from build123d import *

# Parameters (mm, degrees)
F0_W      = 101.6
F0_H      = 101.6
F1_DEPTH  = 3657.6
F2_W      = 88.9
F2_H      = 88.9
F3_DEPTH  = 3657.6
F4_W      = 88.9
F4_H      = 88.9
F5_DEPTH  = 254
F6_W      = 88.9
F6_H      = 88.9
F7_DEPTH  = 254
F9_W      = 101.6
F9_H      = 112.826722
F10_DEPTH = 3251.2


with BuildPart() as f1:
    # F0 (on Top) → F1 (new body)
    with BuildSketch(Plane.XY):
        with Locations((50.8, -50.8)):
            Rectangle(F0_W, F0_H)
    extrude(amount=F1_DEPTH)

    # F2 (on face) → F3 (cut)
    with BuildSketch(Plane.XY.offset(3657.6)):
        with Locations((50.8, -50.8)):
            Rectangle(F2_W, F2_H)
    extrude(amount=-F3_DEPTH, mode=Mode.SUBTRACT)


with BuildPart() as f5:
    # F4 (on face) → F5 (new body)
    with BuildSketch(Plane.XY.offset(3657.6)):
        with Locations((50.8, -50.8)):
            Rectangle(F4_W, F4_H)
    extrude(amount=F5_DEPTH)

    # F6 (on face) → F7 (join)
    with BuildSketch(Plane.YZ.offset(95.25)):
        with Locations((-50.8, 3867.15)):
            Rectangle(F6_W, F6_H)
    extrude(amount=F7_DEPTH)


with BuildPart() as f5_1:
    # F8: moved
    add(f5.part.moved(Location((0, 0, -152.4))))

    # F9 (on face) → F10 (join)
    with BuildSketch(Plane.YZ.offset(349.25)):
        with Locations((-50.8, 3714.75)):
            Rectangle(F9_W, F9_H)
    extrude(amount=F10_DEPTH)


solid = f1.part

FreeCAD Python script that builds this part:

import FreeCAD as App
import Part
import Sketcher
Q = App.Units.Quantity


def add_polygon(sketch, points):
    """Adds a closed chain of lines whose ends are joined by coincident constraints."""
    first, n = sketch.GeometryCount, len(points)
    for a, b in zip(points, points[1:] + points[:1]):
        sketch.addGeometry(Part.LineSegment(App.Vector(*a, 0), App.Vector(*b, 0)), False)
    for i in range(n):
        sketch.addConstraint(Sketcher.Constraint("Coincident", first + i, 2, first + (i + 1) % n, 1))

doc = App.newDocument("Part")
body = doc.addObject("PartDesign::Body", "Body")

# Sketch on XY plane
sketch1 = doc.addObject("Sketcher::SketchObject", "Sketch")
body.addObject(sketch1)
sketch1.AttachmentSupport = (doc.XY_Plane, [""])
sketch1.MapMode = "FlatFace"
add_polygon(sketch1, [(0, 0), (0, -102), (102, -102), (102, 0)])  # lines 0-3
sketch1.addConstraint([
    Sketcher.Constraint("Vertical", 0),
    Sketcher.Constraint("Horizontal", 1),
    Sketcher.Constraint("Vertical", 2),
    Sketcher.Constraint("Horizontal", 3),
    Sketcher.Constraint("Coincident", 3, 2, -1, 1),
    Sketcher.Constraint("Equal", 3, 0),
    Sketcher.Constraint("DistanceX", 1, 1, 1, 2, Q("4 in")),
])
pad1 = doc.addObject("PartDesign::Pad", "Pad")
body.addObject(pad1)
pad1.Profile = sketch1
pad1.Length = Q("144 in")

# Sketch on XY plane
sketch2 = doc.addObject("Sketcher::SketchObject", "Sketch001")
body.addObject(sketch2)
sketch2.AttachmentSupport = (doc.XY_Plane, [""])
sketch2.MapMode = "FlatFace"
sketch2.AttachmentOffset = App.Placement(App.Vector(0, 0, 144 * 25.4), App.Rotation())
add_polygon(sketch2, [(6, -6), (6, -95), (95, -95), (95, -6)])  # lines 0-3
sketch2.addConstraint([
    Sketcher.Constraint("Vertical", 0),
    Sketcher.Constraint("Horizontal", 1),
    Sketcher.Constraint("Vertical", 2),
    Sketcher.Constraint("Horizontal", 3),
    Sketcher.Constraint("Equal", 3, 0),
    Sketcher.Constraint("DistanceX", 1, 1, 1, 2, Q("3.5 in")),
    Sketcher.Constraint("DistanceX", -1, 1, 0, 2, Q("0.25 in")),
    Sketcher.Constraint("DistanceY", 0, 2, -1, 1, Q("3.75 in")),
])
pocket1 = doc.addObject("PartDesign::Pocket", "Pocket")
body.addObject(pocket1)
pocket1.Profile = sketch2
pocket1.Length = Q("144 in")
body2 = doc.addObject("PartDesign::Body", "Body001")

# Sketch on XY plane
sketch3 = doc.addObject("Sketcher::SketchObject", "Sketch002")
body2.addObject(sketch3)
sketch3.AttachmentSupport = (doc.getObject("XY_Plane001"), [""])
sketch3.MapMode = "FlatFace"
sketch3.AttachmentOffset = App.Placement(App.Vector(0, 0, 144 * 25.4), App.Rotation())
add_polygon(sketch3, [(6, -6), (6, -95), (95, -95), (95, -6)])  # lines 0-3
sketch3.addConstraint([
    Sketcher.Constraint("Vertical", 0),
    Sketcher.Constraint("Horizontal", 1),
    Sketcher.Constraint("Vertical", 2),
    Sketcher.Constraint("Horizontal", 3),
    Sketcher.Constraint("Equal", 3, 0),
    Sketcher.Constraint("DistanceX", 1, 1, 1, 2, Q("3.5 in")),
    Sketcher.Constraint("DistanceX", -1, 1, 0, 2, Q("0.25 in")),
    Sketcher.Constraint("DistanceY", 0, 2, -1, 1, Q("3.75 in")),
])
pad2 = doc.addObject("PartDesign::Pad", "Pad001")
body2.addObject(pad2)
pad2.Profile = sketch3
pad2.Length = Q("10 in")

# Sketch on YZ plane
sketch4 = doc.addObject("Sketcher::SketchObject", "Sketch003")
body2.addObject(sketch4)
sketch4.AttachmentSupport = (doc.getObject("YZ_Plane001"), [""])
sketch4.MapMode = "FlatFace"
sketch4.AttachmentOffset = App.Placement(App.Vector(0, 0, 3.75 * 25.4), App.Rotation())
add_polygon(sketch4, [(-95, 3912), (-95, 3823), (-6, 3823), (-6, 3912)])  # lines 0-3
sketch4.addConstraint([
    Sketcher.Constraint("Vertical", 0),
    Sketcher.Constraint("Horizontal", 1),
    Sketcher.Constraint("Vertical", 2),
    Sketcher.Constraint("Horizontal", 3),
    Sketcher.Constraint("Equal", 3, 0),
    Sketcher.Constraint("DistanceX", 1, 1, 1, 2, Q("3.5 in")),
    Sketcher.Constraint("DistanceY", -1, 1, 2, 2, Q("154 in")),
    Sketcher.Constraint("DistanceX", 0, 2, -1, 1, Q("3.75 in")),
])
pad3 = doc.addObject("PartDesign::Pad", "Pad002")
body2.addObject(pad3)
pad3.Profile = sketch4
pad3.Length = Q("10 in")
body3 = doc.addObject("PartDesign::Body", "Body002")
doc.recompute()

body2.Placement = App.Placement(App.Vector(0, 0, -152.4), App.Rotation(App.Vector(0, 0, 1), 0))
boolean = doc.addObject("PartDesign::Boolean", "Boolean")
body3.addObject(boolean)
boolean.Type = "Fuse"
boolean.addObjects([body2])

# Sketch on YZ plane
sketch5 = doc.addObject("Sketcher::SketchObject", "Sketch004")
body3.addObject(sketch5)
sketch5.AttachmentSupport = (doc.getObject("YZ_Plane002"), [""])
sketch5.MapMode = "FlatFace"
sketch5.AttachmentOffset = App.Placement(App.Vector(0, 0, 13.75 * 25.4), App.Rotation())
add_polygon(sketch5, [(-102, 3771), (-102, 3658), (0, 3658), (0, 3771)])  # lines 0-3
sketch5.addConstraint([
    Sketcher.Constraint("Vertical", 0),
    Sketcher.Constraint("Horizontal", 1),
    Sketcher.Constraint("Vertical", 2),
    Sketcher.Constraint("Horizontal", 3),
    Sketcher.Constraint("PointOnObject", 1, 2, -2),
    Sketcher.Constraint("DistanceX", 1, 1, 1, 2, Q("4 in")),
    Sketcher.Constraint("DistanceY", 0, 2, 0, 1, 112.826722),
    Sketcher.Constraint("DistanceY", -1, 1, 0, 2, 3658.336639),
])
pad4 = doc.addObject("PartDesign::Pad", "Pad003")
body3.addObject(pad4)
pad4.Profile = sketch5
pad4.Length = Q("128 in")
body3.Visibility = False

doc.recompute()
